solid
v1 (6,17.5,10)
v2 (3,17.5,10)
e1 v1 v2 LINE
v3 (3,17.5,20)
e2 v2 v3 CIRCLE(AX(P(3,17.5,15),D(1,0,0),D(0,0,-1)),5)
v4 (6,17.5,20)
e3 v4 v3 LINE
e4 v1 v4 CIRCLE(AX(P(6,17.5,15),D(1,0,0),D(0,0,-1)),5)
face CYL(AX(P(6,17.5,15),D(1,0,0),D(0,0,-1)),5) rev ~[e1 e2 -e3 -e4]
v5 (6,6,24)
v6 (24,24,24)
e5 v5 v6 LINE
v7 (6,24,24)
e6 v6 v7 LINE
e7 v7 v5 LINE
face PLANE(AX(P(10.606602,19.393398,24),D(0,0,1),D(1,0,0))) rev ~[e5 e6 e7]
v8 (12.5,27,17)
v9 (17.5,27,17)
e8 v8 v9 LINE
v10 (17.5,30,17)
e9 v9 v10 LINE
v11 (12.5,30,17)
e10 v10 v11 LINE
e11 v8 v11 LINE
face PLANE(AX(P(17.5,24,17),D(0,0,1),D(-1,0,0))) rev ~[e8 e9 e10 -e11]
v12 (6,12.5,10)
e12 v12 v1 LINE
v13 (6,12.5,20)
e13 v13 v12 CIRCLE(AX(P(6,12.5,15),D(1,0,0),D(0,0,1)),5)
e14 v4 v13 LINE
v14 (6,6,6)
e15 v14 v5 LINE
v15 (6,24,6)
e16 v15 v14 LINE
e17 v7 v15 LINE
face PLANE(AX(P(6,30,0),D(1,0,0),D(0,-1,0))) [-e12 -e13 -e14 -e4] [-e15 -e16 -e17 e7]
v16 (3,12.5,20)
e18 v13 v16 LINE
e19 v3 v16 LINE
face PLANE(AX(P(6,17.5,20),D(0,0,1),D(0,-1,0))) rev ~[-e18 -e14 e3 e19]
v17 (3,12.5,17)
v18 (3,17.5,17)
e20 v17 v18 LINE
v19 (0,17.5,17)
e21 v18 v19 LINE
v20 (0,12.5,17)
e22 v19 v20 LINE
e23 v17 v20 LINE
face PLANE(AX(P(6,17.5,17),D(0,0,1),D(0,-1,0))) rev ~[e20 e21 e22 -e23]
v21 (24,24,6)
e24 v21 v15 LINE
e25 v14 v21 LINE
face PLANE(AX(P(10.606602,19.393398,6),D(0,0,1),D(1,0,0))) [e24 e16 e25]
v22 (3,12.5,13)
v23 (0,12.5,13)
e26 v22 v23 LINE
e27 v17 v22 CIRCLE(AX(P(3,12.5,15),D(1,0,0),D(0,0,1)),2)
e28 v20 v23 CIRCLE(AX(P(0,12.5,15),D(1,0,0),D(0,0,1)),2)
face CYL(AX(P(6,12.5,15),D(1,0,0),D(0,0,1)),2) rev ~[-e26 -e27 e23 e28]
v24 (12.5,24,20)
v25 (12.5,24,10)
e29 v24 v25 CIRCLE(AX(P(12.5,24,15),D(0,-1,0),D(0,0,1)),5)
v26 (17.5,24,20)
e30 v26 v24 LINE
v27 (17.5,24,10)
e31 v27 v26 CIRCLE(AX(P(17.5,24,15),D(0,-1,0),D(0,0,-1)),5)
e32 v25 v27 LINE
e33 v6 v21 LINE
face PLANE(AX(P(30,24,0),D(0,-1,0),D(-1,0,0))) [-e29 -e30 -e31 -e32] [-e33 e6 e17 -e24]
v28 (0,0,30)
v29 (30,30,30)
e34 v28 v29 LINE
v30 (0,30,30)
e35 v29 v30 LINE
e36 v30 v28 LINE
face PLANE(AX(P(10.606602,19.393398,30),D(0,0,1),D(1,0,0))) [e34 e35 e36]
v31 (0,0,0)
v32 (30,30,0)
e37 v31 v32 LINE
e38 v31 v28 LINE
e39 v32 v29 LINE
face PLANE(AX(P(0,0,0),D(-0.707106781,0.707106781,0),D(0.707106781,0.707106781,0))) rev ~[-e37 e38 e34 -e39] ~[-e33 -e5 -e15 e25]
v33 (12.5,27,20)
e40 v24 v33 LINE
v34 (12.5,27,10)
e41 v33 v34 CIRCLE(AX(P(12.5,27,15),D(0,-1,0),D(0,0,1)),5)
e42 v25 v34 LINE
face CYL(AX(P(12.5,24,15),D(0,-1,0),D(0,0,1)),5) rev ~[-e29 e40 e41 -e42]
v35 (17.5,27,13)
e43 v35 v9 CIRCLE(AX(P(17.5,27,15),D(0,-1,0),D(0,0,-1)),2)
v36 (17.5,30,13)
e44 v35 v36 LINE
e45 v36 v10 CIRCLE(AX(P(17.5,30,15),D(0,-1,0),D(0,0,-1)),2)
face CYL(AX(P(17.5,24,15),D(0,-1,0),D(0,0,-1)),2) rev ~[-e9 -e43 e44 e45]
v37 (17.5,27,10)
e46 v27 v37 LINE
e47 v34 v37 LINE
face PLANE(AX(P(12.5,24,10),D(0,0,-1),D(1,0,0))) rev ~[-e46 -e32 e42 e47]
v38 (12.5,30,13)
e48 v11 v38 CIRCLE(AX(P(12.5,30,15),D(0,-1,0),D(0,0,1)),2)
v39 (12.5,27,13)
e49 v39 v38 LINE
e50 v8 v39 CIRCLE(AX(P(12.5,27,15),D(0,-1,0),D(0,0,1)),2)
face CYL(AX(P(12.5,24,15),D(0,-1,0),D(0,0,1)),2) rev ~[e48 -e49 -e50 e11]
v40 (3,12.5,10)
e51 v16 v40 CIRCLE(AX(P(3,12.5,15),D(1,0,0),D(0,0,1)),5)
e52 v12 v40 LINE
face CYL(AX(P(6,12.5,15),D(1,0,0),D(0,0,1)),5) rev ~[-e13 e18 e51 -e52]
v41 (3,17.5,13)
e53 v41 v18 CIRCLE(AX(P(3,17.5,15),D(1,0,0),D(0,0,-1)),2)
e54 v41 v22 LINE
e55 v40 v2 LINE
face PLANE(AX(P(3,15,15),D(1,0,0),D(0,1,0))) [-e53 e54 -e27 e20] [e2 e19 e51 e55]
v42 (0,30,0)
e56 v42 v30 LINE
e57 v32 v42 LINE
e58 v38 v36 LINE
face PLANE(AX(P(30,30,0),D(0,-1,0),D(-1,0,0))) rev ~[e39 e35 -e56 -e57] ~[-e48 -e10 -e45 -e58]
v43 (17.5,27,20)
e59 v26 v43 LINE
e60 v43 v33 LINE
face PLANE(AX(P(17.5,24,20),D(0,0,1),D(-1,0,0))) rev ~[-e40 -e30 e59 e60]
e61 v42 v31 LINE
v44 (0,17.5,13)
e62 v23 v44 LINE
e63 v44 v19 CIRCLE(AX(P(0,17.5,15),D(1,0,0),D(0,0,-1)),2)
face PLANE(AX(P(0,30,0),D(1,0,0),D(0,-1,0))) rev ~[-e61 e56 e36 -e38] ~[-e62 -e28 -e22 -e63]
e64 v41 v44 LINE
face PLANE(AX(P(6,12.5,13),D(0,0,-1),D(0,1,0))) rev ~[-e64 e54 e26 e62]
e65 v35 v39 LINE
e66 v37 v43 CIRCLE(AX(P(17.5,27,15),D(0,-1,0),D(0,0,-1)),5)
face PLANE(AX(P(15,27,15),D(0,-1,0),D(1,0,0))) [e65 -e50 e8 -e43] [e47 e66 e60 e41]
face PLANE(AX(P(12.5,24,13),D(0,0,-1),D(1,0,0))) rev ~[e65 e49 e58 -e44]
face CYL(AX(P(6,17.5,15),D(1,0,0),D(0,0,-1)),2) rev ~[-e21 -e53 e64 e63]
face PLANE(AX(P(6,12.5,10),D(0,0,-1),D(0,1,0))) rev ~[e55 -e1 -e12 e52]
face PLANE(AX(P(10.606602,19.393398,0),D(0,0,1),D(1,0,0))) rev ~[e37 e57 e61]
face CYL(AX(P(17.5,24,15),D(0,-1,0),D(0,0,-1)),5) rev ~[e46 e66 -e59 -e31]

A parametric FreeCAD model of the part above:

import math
import FreeCAD as App
import Part
import Sketcher
Q = App.Units.Quantity


def faces_at(feature, points):
    """Names of the faces that lie closest to the given points."""
    faces = feature.Shape.Faces
    near = lambda p: min(range(len(faces)), key=lambda i: faces[i].distToShape(Part.Vertex(*p))[0])
    return sorted({f"Face{near(p) + 1}" for p in points})

doc = App.newDocument("Part")
body = doc.addObject("PartDesign::Body", "Body")

# Sketch on XY plane
sketch1 = body.newObject("Sketcher::SketchObject", "Sketch")
sketch1.AttachmentSupport = (doc.getObject("XY_Plane"), [""])
sketch1.MapMode = "FlatFace"
sketch1.addGeometry([
    Part.LineSegment(App.Vector(0, 30, 0), App.Vector(0, 0, 0)),
    Part.LineSegment(App.Vector(0, 0, 0), App.Vector(30, 30, 0)),
    Part.LineSegment(App.Vector(30, 30, 0), App.Vector(0, 30, 0)),
], False)
sketch1.addConstraint([
    Sketcher.Constraint("Coincident", 0, 2, 1, 1),
    Sketcher.Constraint("Coincident", 1, 2, 2, 1),
    Sketcher.Constraint("Coincident", 2, 2, 0, 1),
    Sketcher.Constraint("Vertical", 0),
    Sketcher.Constraint("Horizontal", 2),
    Sketcher.Constraint("Coincident", 0, 2, -1, 1),
    Sketcher.Constraint("Equal", 2, 0),
    Sketcher.Constraint("DistanceX", 2, 2, 2, 1, Q("30 mm")),
])
pad1 = body.newObject("PartDesign::Pad", "Pad")
pad1.Profile = sketch1
pad1.Length = 30
doc.recompute()

thickness = body.newObject("PartDesign::Thickness", "Thickness")
thickness.Base = (pad1, faces_at(pad1, [(15, 15, 15)]))
thickness.Value = 6
thickness.Reversed = True
thickness.Join = "Arc"

# Sketch on XZ plane
sketch2 = body.newObject("Sketcher::SketchObject", "Sketch001")
sketch2.AttachmentSupport = (doc.getObject("XZ_Plane"), [""])
sketch2.MapMode = "FlatFace"
sketch2.AttachmentOffset = App.Placement(App.Vector(0, 0, -24), App.Rotation())
sketch2.addGeometry([
    Part.ArcOfCircle(Part.Circle(App.Vector(17.5, 15, 0), App.Vector(0, 0, 1), 2), math.radians(-90), math.radians(90)),
    Part.LineSegment(App.Vector(17.5, 17, 0), App.Vector(12.5, 17, 0)),
    Part.ArcOfCircle(Part.Circle(App.Vector(12.5, 15, 0), App.Vector(0, 0, 1), 2), math.radians(90), math.radians(270)),
    Part.LineSegment(App.Vector(12.5, 13, 0), App.Vector(17.5, 13, 0)),
], False)
sketch2.addConstraint([
    Sketcher.Constraint("Tangent", 0, 2, 1, 1),
    Sketcher.Constraint("Tangent", 1, 2, 2, 1),
    Sketcher.Constraint("Tangent", 2, 2, 3, 1),
    Sketcher.Constraint("Tangent", 3, 2, 0, 1),
    Sketcher.Constraint("Horizontal", 1),
    Sketcher.Constraint("Horizontal", 3),
    Sketcher.Constraint("Radius", 0, Q("2 mm")),
    Sketcher.Constraint("DistanceX", 1, 2, 1, 1, Q("5 mm")),
    Sketcher.Constraint("DistanceY", -1, 1, 0, 3, Q("15 mm")),
    Sketcher.Constraint("DistanceX", -1, 1, 0, 3, Q("17.5 mm")),
])
pocket1 = body.newObject("PartDesign::Pocket", "Pocket")
pocket1.Profile = sketch2
pocket1.Type = "ThroughAll"

# Sketch on XZ plane
sketch3 = body.newObject("Sketcher::SketchObject", "Sketch002")
sketch3.AttachmentSupport = (doc.getObject("XZ_Plane"), [""])
sketch3.MapMode = "FlatFace"
sketch3.AttachmentOffset = App.Placement(App.Vector(0, 0, -24), App.Rotation())
sketch3.addGeometry([
    Part.ArcOfCircle(Part.Circle(App.Vector(18, 15, 0), App.Vector(0, 0, 1), 5), math.radians(-90), math.radians(90)),
    Part.LineSegment(App.Vector(18, 20, 0), App.Vector(12, 20, 0)),
    Part.ArcOfCircle(Part.Circle(App.Vector(12, 15, 0), App.Vector(0, 0, 1), 5), math.radians(90), math.radians(270)),
    Part.LineSegment(App.Vector(12, 10, 0), App.Vector(18, 10, 0)),
], False)
sketch3.addConstraint([
    Sketcher.Constraint("Tangent", 0, 2, 1, 1),
    Sketcher.Constraint("Tangent", 1, 2, 2, 1),
    Sketcher.Constraint("Tangent", 2, 2, 3, 1),
    Sketcher.Constraint("Tangent", 3, 2, 0, 1),
    Sketcher.Constraint("Horizontal", 1),
    Sketcher.Constraint("Horizontal", 3),
    Sketcher.Constraint("Radius", 0, Q("5 mm")),
    Sketcher.Constraint("DistanceX", 1, 2, 1, 1, Q("5 mm")),
    Sketcher.Constraint("DistanceY", -1, 1, 0, 3, Q("15 mm")),
    Sketcher.Constraint("DistanceX", -1, 1, 0, 3, Q("17.5 mm")),
])
pocket2 = body.newObject("PartDesign::Pocket", "Pocket001")
pocket2.Profile = sketch3
pocket2.Length = 3

# Sketch on YZ plane
sketch4 = body.newObject("Sketcher::SketchObject", "Sketch003")
sketch4.AttachmentSupport = (doc.getObject("YZ_Plane"), [""])
sketch4.MapMode = "FlatFace"
sketch4.AttachmentOffset = App.Placement(App.Vector(0, 0, 6), App.Rotation())
sketch4.addGeometry([
    Part.ArcOfCircle(Part.Circle(App.Vector(17.5, 15, 0), App.Vector(0, 0, 1), 2), math.radians(-90), math.radians(90)),
    Part.LineSegment(App.Vector(17.5, 17, 0), App.Vector(12.5, 17, 0)),
    Part.ArcOfCircle(Part.Circle(App.Vector(12.5, 15, 0), App.Vector(0, 0, 1), 2), math.radians(90), math.radians(270)),
    Part.LineSegment(App.Vector(12.5, 13, 0), App.Vector(17.5, 13, 0)),
], False)
sketch4.addConstraint([
    Sketcher.Constraint("Tangent", 0, 2, 1, 1),
    Sketcher.Constraint("Tangent", 1, 2, 2, 1),
    Sketcher.Constraint("Tangent", 2, 2, 3, 1),
    Sketcher.Constraint("Tangent", 3, 2, 0, 1),
    Sketcher.Constraint("Horizontal", 1),
    Sketcher.Constraint("Horizontal", 3),
    Sketcher.Constraint("Radius", 0, Q("2 mm")),
    Sketcher.Constraint("DistanceX", 1, 2, 1, 1, Q("5 mm")),
    Sketcher.Constraint("DistanceY", -1, 1, 0, 3, Q("15 mm")),
    Sketcher.Constraint("DistanceX", -1, 1, 0, 3, Q("17.5 mm")),
])
pocket3 = body.newObject("PartDesign::Pocket", "Pocket002")
pocket3.Profile = sketch4
pocket3.Type = "ThroughAll"

# Sketch on YZ plane
sketch5 = body.newObject("Sketcher::SketchObject", "Sketch004")
sketch5.AttachmentSupport = (doc.getObject("YZ_Plane"), [""])
sketch5.MapMode = "FlatFace"
sketch5.AttachmentOffset = App.Placement(App.Vector(0, 0, 6), App.Rotation())
sketch5.addGeometry([
    Part.ArcOfCircle(Part.Circle(App.Vector(12, 15, 0), App.Vector(0, 0, 1), 5), math.radians(90), math.radians(270)),
    Part.LineSegment(App.Vector(12, 10, 0), App.Vector(18, 10, 0)),
    Part.ArcOfCircle(Part.Circle(App.Vector(18, 15, 0), App.Vector(0, 0, 1), 5), math.radians(-90), math.radians(90)),
    Part.LineSegment(App.Vector(18, 20, 0), App.Vector(12, 20, 0)),
], False)
sketch5.addConstraint([
    Sketcher.Constraint("Tangent", 0, 2, 1, 1),
    Sketcher.Constraint("Tangent", 1, 2, 2, 1),
    Sketcher.Constraint("Tangent", 2, 2, 3, 1),
    Sketcher.Constraint("Tangent", 3, 2, 0, 1),
    Sketcher.Constraint("Horizontal", 1),
    Sketcher.Constraint("Horizontal", 3),
    Sketcher.Constraint("Radius", 0, Q("5 mm")),
    Sketcher.Constraint("DistanceX", 1, 1, 1, 2, Q("5 mm")),
    Sketcher.Constraint("DistanceY", -1, 1, 0, 3, Q("15 mm")),
    Sketcher.Constraint("DistanceX", -1, 1, 0, 3, Q("12.5 mm")),
])
pocket4 = body.newObject("PartDesign::Pocket", "Pocket003")
pocket4.Profile = sketch5
pocket4.Length = 3

doc.recompute()
